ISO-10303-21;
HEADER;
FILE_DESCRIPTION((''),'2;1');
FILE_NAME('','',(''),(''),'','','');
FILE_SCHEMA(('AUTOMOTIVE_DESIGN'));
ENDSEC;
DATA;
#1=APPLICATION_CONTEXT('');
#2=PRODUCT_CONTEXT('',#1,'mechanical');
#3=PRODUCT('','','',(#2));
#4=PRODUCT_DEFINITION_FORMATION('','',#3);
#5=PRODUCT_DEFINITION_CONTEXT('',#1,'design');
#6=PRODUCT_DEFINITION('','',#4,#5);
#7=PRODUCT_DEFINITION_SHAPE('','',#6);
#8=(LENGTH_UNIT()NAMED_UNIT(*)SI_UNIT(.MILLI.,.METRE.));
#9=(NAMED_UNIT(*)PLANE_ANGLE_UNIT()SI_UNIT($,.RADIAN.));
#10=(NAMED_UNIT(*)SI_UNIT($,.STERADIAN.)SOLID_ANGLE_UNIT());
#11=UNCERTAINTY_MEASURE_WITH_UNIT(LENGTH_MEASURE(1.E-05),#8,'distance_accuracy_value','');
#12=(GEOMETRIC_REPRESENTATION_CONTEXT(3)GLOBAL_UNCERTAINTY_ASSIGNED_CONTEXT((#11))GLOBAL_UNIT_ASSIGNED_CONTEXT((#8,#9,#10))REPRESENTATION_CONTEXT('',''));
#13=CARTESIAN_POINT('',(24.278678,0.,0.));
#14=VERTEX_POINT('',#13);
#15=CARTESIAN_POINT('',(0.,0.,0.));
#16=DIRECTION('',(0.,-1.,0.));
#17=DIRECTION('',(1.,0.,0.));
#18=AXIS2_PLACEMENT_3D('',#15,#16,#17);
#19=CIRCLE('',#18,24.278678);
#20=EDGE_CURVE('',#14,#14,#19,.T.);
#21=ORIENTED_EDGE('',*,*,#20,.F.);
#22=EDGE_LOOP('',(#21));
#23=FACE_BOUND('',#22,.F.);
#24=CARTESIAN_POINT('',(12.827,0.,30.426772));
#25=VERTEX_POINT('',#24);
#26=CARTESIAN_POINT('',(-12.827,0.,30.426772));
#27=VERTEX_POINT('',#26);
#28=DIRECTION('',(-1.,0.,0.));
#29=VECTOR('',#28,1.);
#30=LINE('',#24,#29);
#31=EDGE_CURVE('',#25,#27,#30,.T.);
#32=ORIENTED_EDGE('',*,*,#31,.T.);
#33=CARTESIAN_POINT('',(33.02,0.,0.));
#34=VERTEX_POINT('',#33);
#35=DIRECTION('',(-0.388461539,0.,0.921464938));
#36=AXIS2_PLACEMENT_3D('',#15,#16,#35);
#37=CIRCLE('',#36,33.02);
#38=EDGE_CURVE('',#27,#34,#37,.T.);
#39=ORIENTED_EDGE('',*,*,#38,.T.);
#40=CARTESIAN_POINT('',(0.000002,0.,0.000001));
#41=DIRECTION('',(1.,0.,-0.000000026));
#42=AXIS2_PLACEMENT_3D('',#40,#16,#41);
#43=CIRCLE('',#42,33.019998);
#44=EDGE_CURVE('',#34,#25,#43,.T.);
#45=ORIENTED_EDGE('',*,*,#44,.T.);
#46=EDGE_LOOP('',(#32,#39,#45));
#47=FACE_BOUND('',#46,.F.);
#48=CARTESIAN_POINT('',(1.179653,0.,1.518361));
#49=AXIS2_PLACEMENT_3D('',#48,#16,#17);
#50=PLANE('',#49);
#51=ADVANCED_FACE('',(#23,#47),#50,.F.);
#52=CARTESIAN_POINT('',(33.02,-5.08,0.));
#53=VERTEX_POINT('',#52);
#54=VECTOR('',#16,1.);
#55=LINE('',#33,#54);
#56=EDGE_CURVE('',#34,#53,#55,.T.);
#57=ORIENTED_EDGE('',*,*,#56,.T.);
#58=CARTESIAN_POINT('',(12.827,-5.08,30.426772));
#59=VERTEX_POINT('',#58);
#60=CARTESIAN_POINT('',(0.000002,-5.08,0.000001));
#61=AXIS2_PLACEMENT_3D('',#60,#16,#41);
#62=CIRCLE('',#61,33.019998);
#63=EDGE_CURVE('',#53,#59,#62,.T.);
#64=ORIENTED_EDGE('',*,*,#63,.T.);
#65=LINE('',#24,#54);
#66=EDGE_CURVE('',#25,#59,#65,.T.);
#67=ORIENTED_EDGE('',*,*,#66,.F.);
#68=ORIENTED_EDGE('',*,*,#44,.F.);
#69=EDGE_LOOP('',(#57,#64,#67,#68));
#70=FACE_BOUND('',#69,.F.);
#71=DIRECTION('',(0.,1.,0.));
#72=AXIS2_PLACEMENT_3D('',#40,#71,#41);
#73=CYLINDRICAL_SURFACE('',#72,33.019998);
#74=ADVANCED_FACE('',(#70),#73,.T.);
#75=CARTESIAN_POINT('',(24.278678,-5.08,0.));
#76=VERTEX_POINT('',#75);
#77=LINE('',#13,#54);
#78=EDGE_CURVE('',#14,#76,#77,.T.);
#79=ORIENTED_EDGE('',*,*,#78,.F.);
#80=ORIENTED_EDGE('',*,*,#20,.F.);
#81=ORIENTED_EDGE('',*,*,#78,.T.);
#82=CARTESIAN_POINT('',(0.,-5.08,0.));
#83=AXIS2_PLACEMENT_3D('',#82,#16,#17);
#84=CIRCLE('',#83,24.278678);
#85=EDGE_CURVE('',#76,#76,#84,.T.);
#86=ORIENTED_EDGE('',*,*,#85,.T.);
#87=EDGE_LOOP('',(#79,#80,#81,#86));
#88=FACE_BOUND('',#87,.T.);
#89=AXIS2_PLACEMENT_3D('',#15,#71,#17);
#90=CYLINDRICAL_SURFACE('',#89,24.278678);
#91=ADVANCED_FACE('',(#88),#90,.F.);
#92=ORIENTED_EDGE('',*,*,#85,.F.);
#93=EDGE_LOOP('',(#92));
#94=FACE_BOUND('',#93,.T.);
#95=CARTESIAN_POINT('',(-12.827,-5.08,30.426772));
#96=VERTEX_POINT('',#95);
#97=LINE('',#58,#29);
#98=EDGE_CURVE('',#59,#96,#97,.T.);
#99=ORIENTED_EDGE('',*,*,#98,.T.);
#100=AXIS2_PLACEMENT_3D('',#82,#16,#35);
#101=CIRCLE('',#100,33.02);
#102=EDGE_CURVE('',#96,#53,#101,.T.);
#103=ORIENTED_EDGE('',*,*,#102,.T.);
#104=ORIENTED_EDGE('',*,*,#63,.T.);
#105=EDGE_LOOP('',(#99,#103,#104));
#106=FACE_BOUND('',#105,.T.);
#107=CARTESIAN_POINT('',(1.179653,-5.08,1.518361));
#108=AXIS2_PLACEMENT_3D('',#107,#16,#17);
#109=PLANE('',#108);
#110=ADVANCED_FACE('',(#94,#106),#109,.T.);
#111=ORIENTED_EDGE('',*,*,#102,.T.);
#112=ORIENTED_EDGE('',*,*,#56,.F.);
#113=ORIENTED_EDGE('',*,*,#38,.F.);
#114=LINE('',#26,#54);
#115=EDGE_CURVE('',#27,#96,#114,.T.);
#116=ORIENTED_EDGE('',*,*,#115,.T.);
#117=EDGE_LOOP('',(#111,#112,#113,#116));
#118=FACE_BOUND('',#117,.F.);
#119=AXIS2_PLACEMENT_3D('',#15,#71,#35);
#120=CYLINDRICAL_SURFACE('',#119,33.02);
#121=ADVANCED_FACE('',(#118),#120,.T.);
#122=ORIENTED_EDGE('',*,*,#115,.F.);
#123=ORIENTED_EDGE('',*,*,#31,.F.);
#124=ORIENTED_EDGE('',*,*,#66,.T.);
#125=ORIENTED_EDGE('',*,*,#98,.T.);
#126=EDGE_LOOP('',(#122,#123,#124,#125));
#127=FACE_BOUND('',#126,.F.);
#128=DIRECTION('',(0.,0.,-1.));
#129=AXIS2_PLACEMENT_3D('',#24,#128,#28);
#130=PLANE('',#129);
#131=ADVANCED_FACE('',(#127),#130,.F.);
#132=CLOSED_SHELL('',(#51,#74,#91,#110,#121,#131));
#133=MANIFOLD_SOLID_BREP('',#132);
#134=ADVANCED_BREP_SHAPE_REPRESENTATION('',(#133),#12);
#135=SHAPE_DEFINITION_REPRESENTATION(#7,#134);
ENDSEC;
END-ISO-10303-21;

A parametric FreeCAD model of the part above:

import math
import FreeCAD as App
import Part
import Sketcher
from FreeCAD import Vector
Q = App.Units.Quantity

doc = App.newDocument("Part")
body = doc.addObject("PartDesign::Body", "Body")

sketch1 = doc.addObject("Sketcher::SketchObject", "Sketch")
body.addObject(sketch1)
sketch1.AttachmentSupport = (doc.XZ_Plane, [""])
sketch1.MapMode = "FlatFace"
sketch1.addGeometry([
    Part.ArcOfCircle(Part.Circle(Vector(0, 0, 0), Vector(0, 0, 1), 33.02), math.radians(112.858806), math.radians(360)),
    Part.ArcOfCircle(Part.Circle(Vector(0.000002, 0.000001, 0), Vector(0, 0, 1), 33.019998), math.radians(-0.000002), math.radians(67.141196)),
    Part.LineSegment(Vector(12.827, 30.426772, 0), Vector(-12.827, 30.426772, 0)),
    Part.Circle(Vector(0, 0, 0), Vector(0, 0, 1), 24.278678),
], False)
sketch1.addConstraint([
    Sketcher.Constraint("Tangent", 0, 2, 1, 1),
    Sketcher.Constraint("Coincident", 1, 2, 2, 1),
    Sketcher.Constraint("Coincident", 2, 2, 0, 1),
    Sketcher.Constraint("Horizontal", 2),
    Sketcher.Constraint("Coincident", 0, 3, -1, 1),
    Sketcher.Constraint("Coincident", 3, 3, -1, 1),
    Sketcher.Constraint("Equal", 0, 1),
    Sketcher.Constraint("PointOnObject", 0, 2, -1),
    Sketcher.Constraint("Radius", 0, Q("1.3 in")),
    Sketcher.Constraint("DistanceX", 2, 2, 2, 1, Q("1.01 in")),
    Sketcher.Constraint("Diameter", 3, 48.557356),
])
pad1 = doc.addObject("PartDesign::Pad", "Pad")
body.addObject(pad1)
pad1.Profile = sketch1
pad1.Length = Q("0.2 in")

doc.recompute()
